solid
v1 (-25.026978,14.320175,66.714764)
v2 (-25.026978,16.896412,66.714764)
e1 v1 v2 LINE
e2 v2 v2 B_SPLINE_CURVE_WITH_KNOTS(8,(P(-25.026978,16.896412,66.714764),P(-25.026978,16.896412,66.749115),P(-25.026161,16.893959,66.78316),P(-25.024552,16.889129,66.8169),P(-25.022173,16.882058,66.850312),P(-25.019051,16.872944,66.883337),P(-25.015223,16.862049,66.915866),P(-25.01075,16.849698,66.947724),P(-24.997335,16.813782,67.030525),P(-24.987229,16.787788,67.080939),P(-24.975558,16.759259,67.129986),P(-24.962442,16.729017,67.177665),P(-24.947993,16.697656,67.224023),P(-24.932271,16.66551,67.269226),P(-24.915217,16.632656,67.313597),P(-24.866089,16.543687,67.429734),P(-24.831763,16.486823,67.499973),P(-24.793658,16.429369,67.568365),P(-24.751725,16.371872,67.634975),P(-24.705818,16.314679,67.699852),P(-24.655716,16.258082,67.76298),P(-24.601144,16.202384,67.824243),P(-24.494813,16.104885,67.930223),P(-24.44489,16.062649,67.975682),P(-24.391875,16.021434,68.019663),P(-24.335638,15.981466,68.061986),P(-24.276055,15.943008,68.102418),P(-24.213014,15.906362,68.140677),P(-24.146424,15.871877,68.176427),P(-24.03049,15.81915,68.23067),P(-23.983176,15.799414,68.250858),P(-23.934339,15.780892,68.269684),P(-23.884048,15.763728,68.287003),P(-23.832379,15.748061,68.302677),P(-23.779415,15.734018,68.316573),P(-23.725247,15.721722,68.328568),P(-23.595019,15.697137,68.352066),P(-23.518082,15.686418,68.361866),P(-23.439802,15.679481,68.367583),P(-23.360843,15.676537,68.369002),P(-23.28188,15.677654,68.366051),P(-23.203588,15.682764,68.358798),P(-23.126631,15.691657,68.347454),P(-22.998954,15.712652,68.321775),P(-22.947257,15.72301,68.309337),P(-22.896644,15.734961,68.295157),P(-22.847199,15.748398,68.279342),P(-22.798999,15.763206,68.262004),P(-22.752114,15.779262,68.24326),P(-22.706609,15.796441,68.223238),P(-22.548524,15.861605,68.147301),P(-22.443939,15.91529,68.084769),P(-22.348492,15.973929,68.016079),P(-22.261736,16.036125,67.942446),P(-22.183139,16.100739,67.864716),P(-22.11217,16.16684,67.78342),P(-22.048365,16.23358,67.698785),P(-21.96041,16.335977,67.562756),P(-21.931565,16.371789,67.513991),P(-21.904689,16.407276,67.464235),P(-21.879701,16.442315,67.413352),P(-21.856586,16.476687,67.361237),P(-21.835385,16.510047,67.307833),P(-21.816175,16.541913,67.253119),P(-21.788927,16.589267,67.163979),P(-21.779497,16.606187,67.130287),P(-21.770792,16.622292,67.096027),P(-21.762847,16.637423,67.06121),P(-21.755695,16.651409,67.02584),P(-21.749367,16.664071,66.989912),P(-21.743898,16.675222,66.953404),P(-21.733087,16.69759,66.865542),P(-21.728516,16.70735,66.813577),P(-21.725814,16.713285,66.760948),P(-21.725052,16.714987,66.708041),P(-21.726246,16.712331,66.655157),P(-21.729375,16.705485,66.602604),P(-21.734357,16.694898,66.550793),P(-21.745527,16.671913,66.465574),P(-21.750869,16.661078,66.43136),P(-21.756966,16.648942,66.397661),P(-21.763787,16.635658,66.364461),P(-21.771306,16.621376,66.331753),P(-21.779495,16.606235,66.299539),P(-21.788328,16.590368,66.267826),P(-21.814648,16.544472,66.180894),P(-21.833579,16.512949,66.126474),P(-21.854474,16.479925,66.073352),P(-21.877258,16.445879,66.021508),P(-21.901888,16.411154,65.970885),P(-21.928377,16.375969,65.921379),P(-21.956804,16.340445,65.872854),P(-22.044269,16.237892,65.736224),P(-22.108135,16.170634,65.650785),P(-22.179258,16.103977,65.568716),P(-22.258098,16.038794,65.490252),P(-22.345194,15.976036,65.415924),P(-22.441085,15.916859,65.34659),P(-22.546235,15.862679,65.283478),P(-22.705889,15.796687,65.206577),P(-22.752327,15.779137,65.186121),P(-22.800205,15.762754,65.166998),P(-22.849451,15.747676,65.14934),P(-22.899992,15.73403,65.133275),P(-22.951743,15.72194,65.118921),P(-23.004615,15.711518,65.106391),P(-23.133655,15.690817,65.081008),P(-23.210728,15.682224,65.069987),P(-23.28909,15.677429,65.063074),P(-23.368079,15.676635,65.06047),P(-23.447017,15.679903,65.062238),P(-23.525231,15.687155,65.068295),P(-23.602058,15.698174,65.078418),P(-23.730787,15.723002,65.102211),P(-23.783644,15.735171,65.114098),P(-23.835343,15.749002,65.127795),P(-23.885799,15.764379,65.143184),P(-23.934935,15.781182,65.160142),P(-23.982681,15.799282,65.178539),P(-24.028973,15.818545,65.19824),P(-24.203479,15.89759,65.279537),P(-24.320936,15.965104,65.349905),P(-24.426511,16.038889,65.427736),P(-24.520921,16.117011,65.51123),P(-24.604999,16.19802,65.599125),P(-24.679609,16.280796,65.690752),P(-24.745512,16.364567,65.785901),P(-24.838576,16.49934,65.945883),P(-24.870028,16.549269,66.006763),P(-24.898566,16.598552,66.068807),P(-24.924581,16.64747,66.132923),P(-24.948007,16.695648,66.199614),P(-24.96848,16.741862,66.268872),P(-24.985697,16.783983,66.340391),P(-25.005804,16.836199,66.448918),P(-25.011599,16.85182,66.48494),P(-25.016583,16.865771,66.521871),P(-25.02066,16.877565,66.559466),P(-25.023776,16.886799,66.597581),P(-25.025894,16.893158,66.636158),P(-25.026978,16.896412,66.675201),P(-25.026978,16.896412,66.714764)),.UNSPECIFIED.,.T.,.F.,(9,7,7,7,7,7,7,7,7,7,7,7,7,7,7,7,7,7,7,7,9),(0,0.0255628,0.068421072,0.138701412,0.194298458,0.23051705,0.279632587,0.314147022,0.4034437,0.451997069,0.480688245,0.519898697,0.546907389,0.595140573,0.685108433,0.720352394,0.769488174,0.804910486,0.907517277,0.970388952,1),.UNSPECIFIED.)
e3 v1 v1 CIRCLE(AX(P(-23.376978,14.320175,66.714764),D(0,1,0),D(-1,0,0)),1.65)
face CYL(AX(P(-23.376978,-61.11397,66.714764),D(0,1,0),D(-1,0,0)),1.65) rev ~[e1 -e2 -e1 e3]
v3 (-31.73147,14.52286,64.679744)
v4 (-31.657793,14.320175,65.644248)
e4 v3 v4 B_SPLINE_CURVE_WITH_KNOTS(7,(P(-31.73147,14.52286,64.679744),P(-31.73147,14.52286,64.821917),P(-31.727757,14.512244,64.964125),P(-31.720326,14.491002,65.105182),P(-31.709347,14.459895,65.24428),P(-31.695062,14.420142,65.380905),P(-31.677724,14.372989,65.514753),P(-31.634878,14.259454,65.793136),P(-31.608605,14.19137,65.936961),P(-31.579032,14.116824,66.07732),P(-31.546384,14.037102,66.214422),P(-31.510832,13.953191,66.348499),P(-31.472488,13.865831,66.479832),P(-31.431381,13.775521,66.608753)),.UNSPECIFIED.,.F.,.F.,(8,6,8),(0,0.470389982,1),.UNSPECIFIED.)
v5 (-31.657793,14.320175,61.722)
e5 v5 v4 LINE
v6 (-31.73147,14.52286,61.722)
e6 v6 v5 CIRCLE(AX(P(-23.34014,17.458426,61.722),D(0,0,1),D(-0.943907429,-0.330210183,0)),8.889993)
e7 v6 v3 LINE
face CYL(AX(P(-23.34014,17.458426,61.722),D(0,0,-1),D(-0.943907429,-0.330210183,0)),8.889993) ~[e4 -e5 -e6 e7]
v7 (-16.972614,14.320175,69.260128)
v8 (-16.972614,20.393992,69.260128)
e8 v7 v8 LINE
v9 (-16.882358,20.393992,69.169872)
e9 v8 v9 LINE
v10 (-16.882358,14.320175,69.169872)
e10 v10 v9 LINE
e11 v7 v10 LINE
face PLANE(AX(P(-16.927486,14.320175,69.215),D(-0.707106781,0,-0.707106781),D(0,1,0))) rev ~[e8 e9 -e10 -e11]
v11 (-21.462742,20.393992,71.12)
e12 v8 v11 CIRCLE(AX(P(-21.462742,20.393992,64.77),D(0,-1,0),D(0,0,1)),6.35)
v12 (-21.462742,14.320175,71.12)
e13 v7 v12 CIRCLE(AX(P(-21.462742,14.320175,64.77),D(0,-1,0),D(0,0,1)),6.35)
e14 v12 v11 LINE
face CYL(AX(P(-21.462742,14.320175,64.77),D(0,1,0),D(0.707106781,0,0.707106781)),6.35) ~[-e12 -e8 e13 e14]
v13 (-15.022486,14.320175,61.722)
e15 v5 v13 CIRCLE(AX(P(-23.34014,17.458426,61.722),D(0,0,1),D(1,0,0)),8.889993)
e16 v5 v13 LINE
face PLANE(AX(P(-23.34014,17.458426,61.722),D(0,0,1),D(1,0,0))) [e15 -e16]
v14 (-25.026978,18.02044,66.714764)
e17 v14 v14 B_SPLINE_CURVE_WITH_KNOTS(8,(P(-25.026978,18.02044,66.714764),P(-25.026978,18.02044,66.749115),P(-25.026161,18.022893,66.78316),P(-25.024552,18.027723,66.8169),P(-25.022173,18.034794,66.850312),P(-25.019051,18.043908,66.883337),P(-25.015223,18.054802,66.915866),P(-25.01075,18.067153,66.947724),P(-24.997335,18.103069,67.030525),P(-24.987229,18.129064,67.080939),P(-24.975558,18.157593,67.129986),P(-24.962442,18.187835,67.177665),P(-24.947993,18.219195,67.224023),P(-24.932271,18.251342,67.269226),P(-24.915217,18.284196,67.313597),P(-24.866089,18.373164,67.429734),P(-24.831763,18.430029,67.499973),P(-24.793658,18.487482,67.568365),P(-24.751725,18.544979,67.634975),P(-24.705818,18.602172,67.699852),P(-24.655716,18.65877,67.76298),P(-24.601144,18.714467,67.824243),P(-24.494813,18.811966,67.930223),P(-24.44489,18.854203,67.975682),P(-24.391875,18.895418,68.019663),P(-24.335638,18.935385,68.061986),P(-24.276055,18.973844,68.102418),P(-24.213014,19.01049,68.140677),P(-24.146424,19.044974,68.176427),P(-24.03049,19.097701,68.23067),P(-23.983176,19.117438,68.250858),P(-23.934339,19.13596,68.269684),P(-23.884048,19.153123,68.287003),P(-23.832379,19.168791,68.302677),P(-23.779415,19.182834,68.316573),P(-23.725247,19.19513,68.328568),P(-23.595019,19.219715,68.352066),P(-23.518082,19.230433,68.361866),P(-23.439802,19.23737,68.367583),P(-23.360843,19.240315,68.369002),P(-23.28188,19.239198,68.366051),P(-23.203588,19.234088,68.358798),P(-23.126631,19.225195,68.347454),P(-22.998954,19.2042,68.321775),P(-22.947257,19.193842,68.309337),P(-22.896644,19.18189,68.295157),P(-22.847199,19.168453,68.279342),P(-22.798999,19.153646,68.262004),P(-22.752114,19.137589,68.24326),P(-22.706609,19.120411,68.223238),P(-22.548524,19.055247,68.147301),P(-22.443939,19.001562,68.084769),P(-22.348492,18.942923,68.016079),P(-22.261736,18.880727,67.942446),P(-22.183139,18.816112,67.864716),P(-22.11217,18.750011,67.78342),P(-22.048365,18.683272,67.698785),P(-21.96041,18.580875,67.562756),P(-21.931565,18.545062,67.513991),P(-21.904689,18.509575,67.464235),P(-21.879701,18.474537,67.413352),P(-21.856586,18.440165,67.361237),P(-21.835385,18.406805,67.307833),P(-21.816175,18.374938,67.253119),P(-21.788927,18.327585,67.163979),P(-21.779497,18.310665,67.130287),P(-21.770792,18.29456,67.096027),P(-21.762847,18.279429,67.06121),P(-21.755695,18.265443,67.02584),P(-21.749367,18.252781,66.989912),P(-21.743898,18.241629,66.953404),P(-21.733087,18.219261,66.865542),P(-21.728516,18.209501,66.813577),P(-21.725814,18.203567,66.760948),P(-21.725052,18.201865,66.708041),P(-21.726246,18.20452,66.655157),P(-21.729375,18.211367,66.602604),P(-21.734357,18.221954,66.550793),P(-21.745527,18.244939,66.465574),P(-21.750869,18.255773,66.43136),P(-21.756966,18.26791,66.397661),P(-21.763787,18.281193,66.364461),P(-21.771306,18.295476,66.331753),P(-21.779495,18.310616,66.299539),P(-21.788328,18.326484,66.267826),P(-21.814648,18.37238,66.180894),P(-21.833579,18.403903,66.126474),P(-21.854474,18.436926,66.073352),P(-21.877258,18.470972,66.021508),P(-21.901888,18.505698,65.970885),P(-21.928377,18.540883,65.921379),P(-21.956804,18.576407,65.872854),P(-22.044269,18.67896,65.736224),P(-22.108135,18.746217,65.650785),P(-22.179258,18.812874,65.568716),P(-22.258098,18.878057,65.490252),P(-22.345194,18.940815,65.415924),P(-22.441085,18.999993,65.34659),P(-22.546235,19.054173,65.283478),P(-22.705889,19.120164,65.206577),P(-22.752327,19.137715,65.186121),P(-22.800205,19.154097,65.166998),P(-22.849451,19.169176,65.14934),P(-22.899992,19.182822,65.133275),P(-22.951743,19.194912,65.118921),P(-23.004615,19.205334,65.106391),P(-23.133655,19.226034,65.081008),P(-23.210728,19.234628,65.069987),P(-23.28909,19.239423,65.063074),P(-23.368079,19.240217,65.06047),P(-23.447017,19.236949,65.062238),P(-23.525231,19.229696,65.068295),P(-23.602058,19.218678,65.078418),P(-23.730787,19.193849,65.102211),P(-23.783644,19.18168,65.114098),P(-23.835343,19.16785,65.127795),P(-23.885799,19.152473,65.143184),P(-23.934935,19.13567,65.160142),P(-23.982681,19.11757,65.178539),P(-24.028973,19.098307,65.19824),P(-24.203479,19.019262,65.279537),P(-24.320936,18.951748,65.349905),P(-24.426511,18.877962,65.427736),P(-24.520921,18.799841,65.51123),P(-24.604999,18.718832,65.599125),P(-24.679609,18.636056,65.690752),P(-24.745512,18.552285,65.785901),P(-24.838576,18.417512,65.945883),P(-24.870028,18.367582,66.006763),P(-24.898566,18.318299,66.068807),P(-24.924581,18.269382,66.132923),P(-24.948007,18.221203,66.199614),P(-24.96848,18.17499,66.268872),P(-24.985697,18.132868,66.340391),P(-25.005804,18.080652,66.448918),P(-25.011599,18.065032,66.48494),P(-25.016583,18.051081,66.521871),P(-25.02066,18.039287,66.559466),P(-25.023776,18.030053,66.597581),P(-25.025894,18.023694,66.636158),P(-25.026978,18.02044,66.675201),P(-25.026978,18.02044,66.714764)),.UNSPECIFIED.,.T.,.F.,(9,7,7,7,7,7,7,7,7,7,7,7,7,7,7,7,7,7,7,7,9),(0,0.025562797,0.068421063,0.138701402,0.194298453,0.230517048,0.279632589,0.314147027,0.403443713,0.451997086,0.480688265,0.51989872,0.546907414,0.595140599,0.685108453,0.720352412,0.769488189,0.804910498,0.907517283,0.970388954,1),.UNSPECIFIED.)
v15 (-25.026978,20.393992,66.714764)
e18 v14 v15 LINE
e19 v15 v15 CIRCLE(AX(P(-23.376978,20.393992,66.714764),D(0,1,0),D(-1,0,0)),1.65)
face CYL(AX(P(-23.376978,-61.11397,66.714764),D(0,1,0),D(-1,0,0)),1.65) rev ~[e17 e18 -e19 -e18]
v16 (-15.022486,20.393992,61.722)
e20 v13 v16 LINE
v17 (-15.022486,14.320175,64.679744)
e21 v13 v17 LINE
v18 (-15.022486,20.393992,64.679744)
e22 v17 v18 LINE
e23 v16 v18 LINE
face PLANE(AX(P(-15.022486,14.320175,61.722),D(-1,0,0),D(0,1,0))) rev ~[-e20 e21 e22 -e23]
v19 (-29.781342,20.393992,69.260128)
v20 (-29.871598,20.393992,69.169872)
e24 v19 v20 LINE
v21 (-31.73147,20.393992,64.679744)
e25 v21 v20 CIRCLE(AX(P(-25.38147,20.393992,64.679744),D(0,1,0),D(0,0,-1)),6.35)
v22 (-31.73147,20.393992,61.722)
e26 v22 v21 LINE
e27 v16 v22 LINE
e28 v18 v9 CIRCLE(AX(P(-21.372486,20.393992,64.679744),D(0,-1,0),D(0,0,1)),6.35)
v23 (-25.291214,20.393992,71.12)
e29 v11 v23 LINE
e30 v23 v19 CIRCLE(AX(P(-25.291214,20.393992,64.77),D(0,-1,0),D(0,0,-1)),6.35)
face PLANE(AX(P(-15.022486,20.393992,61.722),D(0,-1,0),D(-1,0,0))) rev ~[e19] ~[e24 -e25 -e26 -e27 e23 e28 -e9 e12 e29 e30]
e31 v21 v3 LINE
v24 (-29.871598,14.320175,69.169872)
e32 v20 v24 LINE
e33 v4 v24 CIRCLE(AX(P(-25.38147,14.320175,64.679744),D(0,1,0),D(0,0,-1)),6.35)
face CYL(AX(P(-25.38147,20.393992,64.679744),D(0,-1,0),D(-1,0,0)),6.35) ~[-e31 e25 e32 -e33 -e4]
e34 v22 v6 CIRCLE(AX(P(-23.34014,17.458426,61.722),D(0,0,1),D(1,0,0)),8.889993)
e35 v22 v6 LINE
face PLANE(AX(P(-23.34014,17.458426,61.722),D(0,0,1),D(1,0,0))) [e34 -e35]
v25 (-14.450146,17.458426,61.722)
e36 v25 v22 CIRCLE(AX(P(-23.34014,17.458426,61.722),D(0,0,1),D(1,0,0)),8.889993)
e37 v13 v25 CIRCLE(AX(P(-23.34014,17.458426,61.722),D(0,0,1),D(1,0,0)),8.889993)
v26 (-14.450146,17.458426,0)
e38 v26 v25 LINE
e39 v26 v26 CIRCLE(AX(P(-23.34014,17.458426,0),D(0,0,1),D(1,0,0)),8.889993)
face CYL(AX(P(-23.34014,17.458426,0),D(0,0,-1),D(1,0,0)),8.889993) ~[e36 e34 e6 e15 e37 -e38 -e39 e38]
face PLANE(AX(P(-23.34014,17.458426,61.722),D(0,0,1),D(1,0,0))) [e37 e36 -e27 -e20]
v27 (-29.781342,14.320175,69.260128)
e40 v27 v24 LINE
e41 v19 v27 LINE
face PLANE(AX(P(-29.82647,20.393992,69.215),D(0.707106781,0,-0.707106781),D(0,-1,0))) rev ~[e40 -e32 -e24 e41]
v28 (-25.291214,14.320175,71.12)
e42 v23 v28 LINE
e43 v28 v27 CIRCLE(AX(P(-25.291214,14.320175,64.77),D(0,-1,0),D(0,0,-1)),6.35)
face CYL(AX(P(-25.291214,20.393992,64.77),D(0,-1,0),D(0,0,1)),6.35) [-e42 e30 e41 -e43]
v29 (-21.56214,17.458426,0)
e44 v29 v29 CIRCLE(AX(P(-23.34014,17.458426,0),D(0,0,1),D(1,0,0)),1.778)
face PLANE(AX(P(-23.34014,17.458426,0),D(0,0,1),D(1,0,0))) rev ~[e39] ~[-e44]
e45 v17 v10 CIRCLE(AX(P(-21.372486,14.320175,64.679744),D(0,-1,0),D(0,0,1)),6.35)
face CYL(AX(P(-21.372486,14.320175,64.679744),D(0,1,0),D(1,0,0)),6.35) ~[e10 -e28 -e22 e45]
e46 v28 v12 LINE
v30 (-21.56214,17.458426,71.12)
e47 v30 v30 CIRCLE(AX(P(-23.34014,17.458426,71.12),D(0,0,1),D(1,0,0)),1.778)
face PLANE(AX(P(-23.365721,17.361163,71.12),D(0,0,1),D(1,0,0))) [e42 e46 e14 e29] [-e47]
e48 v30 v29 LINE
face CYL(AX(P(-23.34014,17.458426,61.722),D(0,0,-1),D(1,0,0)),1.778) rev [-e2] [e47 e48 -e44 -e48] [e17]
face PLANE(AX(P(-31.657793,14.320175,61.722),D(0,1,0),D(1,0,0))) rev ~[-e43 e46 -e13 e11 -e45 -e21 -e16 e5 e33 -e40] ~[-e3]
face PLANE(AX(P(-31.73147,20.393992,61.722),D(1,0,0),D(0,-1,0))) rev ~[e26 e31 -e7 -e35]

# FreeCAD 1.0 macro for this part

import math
import FreeCAD as App
import Part
import Sketcher
from FreeCAD import Vector
Q = App.Units.Quantity


def edges_at(feature, points):
    """Names of the edges that pass closest to the given points."""
    edges = feature.Shape.Edges
    near = lambda p: min(range(len(edges)), key=lambda i: edges[i].distToShape(Part.Vertex(*p))[0])
    return sorted({f"Edge{near(p) + 1}" for p in points})

doc = App.newDocument("Part")
body = doc.addObject("PartDesign::Body", "Body")

sketch1 = body.newObject("Sketcher::SketchObject", "Sketch")
sketch1.AttachmentSupport = (doc.getObject("XY_Plane"), [""])
sketch1.MapMode = "FlatFace"
sketch1.addGeometry(Part.Circle(Vector(-23.34014, 17.458426, 0), Vector(0, 0, 1), 8.889993), False)
sketch1.addGeometry(Part.Circle(Vector(-23.34014, 17.458426, 0), Vector(0, 0, 1), 1.778), False)
sketch1.addConstraint(Sketcher.Constraint("Coincident", 1, 3, 0, 3))
sketch1.addConstraint(Sketcher.Constraint("Diameter", 1, Q("0.14 in")))
sketch1.addConstraint(Sketcher.Constraint("Diameter", 0, 17.779987))
sketch1.addConstraint(Sketcher.Constraint("DistanceX", 0, 3, -1, 1, 23.34014))
sketch1.addConstraint(Sketcher.Constraint("DistanceY", -1, 1, 0, 3, 17.458426))
pad1 = body.newObject("PartDesign::Pad", "Pad")
pad1.Profile = sketch1
pad1.Length = Q("2.43 in")

sketch2 = body.newObject("Sketcher::SketchObject", "Sketch001")
sketch2.AttachmentSupport = (doc.getObject("XY_Plane"), [""])
sketch2.MapMode = "FlatFace"
sketch2.AttachmentOffset = App.Placement(Vector(0, 0, 2.43 * 25.4), App.Rotation())
sketch2.addGeometry(Part.LineSegment(Vector(-15.022486, 20.393992, 0), Vector(-31.73147, 20.393992, 0)), False)
sketch2.addGeometry(Part.LineSegment(Vector(-31.73147, 20.393992, 0), Vector(-31.73147, 14.52286, 0)), False)
sketch2.addGeometry(Part.ArcOfCircle(Part.Circle(Vector(-23.34014, 17.458426, 0), Vector(0, 0, 1), 8.889993), math.radians(-160.718467), math.radians(-159.32851)), False)
sketch2.addGeometry(Part.LineSegment(Vector(-31.657793, 14.320175, 0), Vector(-15.022486, 14.320175, 0)), False)
sketch2.addGeometry(Part.LineSegment(Vector(-15.022486, 14.320175, 0), Vector(-15.022486, 20.393992, 0)), False)
sketch2.addGeometry(Part.Circle(Vector(-23.34014, 17.458426, 0), Vector(0, 0, 1), 1.778), False)
sketch2.addConstraint(Sketcher.Constraint("Coincident", 0, 2, 1, 1))
sketch2.addConstraint(Sketcher.Constraint("Coincident", 1, 2, 2, 1))
sketch2.addConstraint(Sketcher.Constraint("Coincident", 2, 2, 3, 1))
sketch2.addConstraint(Sketcher.Constraint("Coincident", 3, 2, 4, 1))
sketch2.addConstraint(Sketcher.Constraint("Coincident", 4, 2, 0, 1))
sketch2.addConstraint(Sketcher.Constraint("Horizontal", 0))
sketch2.addConstraint(Sketcher.Constraint("Vertical", 1))
sketch2.addConstraint(Sketcher.Constraint("Horizontal", 3))
sketch2.addConstraint(Sketcher.Constraint("Vertical", 4))
sketch2.addConstraint(Sketcher.Constraint("Coincident", 5, 3, 2, 3))
sketch2.addConstraint(Sketcher.Constraint("Diameter", 5, Q("0.14 in")))
sketch2.addConstraint(Sketcher.Constraint("Radius", 2, 8.889993))
sketch2.addConstraint(Sketcher.Constraint("DistanceX", 0, 2, 0, 1, 16.708984))
sketch2.addConstraint(Sketcher.Constraint("DistanceX", 3, 1, 3, 2, 16.635307))
sketch2.addConstraint(Sketcher.Constraint("DistanceY", 1, 2, 1, 1, 5.871133))
sketch2.addConstraint(Sketcher.Constraint("DistanceY", 4, 1, 4, 2, 6.073817))
sketch2.addConstraint(Sketcher.Constraint("DistanceX", 2, 3, -1, 1, 23.34014))
sketch2.addConstraint(Sketcher.Constraint("DistanceY", -1, 1, 1, 2, 14.52286))
pad2 = body.newObject("PartDesign::Pad", "Pad001")
pad2.Profile = sketch2
pad2.Length = Q("0.37 in")
doc.recompute()

chamfer = body.newObject("PartDesign::Chamfer", "Chamfer")
chamfer.Base = (pad2, edges_at(pad2, [(-15.022, 17.357, 71.12), (-31.731, 17.458, 71.12)]))
chamfer.Size = Q("0.15 in")
doc.recompute()

fillet = body.newObject("PartDesign::Fillet", "Fillet")
fillet.Base = (chamfer, edges_at(chamfer, [
    (-27.921, 17.357, 71.12),
    (-18.832, 17.357, 71.12),
    (-15.022, 17.357, 67.31),
    (-31.731, 17.458, 67.31),
]))
fillet.Radius = Q("0.25 in")

sketch3 = body.newObject("Sketcher::SketchObject", "Sketch002")
sketch3.AttachmentSupport = (doc.getObject("XZ_Plane"), [""])
sketch3.MapMode = "FlatFace"
sketch3.AttachmentOffset = App.Placement(Vector(0, 0, -14.320175), App.Rotation())
sketch3.addGeometry(Part.Circle(Vector(-23.376978, 66.714764, 0), Vector(0, 0, 1), 1.65), False)
sketch3.addConstraint(Sketcher.Constraint("Diameter", 0, 3.3))
sketch3.addConstraint(Sketcher.Constraint("DistanceX", 0, 3, -1, 1, 23.376978))
sketch3.addConstraint(Sketcher.Constraint("DistanceY", -1, 1, 0, 3, 66.714764))
doc.recompute()
hole = body.newObject("PartDesign::Hole", "Hole")
hole.Profile = sketch3
hole.ThreadType = "None"
hole.Diameter = 3.3
hole.DepthType = "ThroughAll"

doc.recompute()
